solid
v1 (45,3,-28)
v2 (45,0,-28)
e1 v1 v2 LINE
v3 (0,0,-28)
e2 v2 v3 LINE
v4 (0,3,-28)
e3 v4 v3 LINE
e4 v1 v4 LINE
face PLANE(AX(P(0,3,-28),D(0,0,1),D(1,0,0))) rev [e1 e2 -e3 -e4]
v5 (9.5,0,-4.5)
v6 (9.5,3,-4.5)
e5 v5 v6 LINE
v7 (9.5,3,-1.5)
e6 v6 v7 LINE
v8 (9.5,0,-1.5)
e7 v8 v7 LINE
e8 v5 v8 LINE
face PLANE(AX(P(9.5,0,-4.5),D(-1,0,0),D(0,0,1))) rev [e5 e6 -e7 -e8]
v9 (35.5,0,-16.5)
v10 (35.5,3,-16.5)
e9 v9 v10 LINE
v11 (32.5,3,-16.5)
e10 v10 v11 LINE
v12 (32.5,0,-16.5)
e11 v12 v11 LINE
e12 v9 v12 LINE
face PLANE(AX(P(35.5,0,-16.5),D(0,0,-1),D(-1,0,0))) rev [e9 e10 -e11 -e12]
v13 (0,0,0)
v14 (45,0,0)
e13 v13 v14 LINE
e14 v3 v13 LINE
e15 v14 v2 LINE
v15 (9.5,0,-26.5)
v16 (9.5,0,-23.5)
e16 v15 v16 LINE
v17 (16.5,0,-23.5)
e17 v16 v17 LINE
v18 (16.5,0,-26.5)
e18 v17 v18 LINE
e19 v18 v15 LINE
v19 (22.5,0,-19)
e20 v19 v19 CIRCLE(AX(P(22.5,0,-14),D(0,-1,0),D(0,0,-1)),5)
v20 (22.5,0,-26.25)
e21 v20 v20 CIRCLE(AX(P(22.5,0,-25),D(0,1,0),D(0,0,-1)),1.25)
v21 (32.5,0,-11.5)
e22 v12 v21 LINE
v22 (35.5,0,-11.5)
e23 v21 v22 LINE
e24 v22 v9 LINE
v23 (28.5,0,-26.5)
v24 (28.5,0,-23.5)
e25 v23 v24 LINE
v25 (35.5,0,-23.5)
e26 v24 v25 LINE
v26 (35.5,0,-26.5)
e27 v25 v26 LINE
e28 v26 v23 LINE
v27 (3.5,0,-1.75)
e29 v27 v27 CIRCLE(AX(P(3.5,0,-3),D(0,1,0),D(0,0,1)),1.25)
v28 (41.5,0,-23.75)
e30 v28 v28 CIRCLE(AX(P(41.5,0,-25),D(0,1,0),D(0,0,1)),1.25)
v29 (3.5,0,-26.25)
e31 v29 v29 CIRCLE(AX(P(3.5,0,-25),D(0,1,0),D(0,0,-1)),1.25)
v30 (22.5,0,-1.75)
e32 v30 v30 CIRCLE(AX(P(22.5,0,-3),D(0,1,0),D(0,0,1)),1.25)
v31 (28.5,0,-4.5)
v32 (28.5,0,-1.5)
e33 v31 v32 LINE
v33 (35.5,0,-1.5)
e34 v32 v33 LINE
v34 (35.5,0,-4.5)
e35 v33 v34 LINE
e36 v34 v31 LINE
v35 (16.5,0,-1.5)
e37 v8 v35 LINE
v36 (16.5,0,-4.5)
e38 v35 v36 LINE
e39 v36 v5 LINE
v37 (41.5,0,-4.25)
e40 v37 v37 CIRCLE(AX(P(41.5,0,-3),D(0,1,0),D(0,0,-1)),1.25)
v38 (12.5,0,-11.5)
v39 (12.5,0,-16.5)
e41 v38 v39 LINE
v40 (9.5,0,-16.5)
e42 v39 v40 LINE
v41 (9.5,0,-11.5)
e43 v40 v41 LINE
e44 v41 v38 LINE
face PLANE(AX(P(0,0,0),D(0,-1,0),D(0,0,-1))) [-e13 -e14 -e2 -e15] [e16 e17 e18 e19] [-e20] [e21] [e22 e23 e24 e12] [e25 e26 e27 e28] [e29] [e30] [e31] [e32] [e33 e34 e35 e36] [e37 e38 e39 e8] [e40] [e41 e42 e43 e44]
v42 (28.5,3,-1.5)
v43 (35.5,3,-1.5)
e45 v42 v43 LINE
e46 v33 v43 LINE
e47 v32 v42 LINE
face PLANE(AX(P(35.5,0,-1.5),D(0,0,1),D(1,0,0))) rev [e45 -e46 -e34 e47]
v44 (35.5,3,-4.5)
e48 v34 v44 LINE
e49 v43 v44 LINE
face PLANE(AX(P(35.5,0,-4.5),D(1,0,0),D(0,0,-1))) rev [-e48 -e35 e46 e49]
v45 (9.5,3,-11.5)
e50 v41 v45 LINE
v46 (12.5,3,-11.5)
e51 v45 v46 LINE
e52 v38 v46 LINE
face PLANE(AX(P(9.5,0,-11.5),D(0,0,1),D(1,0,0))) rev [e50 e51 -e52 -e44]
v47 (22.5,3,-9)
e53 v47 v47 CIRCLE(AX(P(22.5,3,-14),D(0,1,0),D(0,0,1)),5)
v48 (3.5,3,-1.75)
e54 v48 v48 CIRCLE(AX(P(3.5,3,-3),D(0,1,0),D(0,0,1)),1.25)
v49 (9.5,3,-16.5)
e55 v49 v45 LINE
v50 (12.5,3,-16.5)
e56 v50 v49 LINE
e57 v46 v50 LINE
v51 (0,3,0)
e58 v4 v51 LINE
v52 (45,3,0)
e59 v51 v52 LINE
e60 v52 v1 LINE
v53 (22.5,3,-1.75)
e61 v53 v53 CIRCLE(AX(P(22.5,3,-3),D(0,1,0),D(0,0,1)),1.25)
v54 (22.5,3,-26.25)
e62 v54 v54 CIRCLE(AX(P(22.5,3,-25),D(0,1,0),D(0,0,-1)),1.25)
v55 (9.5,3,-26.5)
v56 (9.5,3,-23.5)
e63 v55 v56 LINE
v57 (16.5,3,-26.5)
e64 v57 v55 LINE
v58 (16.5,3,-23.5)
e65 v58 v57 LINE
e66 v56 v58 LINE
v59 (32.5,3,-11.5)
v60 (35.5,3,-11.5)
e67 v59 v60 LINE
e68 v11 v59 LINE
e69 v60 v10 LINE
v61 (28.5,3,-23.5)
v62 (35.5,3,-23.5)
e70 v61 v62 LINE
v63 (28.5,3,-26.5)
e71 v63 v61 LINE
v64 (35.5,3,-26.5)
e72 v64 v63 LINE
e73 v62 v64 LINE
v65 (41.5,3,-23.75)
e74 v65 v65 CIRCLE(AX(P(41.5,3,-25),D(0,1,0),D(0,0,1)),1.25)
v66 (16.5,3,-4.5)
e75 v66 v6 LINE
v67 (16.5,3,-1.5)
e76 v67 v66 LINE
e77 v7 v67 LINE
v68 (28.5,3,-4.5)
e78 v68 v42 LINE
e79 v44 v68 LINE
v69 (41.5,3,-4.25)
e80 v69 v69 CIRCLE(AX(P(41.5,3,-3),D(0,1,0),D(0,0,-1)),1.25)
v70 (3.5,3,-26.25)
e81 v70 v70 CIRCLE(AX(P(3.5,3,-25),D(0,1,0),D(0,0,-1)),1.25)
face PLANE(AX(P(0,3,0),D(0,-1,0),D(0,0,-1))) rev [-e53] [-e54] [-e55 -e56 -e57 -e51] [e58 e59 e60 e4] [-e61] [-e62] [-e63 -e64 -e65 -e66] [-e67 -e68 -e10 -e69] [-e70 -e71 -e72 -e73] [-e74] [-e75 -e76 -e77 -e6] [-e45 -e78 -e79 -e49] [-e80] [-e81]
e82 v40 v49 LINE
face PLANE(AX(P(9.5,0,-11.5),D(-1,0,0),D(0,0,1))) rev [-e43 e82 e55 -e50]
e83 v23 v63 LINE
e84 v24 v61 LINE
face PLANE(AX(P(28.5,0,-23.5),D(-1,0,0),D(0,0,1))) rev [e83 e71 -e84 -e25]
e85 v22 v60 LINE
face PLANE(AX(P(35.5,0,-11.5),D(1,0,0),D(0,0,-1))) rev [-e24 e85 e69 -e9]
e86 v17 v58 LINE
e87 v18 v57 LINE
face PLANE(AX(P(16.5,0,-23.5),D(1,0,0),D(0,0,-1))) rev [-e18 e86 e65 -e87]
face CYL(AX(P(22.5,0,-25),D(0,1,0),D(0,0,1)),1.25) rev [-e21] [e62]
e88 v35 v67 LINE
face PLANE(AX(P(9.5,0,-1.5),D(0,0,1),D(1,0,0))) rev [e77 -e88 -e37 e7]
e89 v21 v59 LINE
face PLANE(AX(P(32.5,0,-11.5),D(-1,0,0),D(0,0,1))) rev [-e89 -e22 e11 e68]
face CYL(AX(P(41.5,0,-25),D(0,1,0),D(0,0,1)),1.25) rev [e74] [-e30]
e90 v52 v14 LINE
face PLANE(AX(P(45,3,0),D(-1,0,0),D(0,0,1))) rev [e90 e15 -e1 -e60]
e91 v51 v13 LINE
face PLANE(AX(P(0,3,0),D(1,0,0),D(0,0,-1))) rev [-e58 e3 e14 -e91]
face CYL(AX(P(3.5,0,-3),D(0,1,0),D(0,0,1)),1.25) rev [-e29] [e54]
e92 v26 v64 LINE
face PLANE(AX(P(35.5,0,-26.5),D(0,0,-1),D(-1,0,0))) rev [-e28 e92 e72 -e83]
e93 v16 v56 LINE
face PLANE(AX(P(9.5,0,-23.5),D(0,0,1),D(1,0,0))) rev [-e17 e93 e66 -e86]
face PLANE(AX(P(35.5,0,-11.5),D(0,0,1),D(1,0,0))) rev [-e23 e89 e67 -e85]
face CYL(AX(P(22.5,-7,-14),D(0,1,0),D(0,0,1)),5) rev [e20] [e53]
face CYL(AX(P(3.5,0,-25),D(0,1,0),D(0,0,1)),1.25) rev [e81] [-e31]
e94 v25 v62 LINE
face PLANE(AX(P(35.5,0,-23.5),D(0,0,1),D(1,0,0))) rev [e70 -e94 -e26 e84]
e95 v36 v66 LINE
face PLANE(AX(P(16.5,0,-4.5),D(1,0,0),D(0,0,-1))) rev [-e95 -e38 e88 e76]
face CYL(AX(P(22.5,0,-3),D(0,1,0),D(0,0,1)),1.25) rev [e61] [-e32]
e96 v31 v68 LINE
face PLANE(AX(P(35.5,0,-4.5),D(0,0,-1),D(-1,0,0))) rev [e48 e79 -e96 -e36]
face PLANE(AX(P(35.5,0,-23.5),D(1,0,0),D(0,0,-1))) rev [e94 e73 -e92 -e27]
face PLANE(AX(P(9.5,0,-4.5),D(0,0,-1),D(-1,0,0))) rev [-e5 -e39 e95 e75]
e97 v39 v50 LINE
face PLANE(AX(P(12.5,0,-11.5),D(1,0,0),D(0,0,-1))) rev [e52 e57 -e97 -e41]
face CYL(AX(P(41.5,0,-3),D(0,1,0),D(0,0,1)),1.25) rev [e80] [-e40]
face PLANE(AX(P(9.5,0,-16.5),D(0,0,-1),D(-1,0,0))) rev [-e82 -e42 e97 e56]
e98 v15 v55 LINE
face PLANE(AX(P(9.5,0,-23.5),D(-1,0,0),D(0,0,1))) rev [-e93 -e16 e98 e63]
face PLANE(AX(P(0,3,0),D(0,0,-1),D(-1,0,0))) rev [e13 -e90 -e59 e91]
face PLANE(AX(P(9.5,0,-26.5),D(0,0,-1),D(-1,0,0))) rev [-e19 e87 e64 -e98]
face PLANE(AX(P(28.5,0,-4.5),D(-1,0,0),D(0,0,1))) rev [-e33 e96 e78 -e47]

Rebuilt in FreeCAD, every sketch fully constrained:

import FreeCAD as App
import Part
import Sketcher
Q = App.Units.Quantity

doc = App.newDocument("Part")
params = doc.addObject("Spreadsheet::Sheet", "Params")
for row, (alias, value) in enumerate([
    ("sketch1_width", "45 mm"),
    ("sketch1_height", "28 mm"),
    ("pad1_length", "3 mm"),
    ("sketch2_diameter", "2.5 mm"),
    ("sketch2_width", "7 mm"),
    ("sketch2_height", "3 mm"),
    ("sketch3_width", "3 mm"),
    ("sketch3_height", "5 mm"),
    ("sketch4_diameter", "10 mm"),
    ("pocket3_length", "10 mm"),
], start=1):
    params.set(f"A{row}", alias)
    params.set(f"B{row}", "=" + value)
    params.setAlias(f"B{row}", alias)

body = doc.addObject("PartDesign::Body", "Body")

# Sketch on XZ plane
sketch1 = body.newObject("Sketcher::SketchObject", "Sketch")
sketch1.AttachmentSupport = (doc.getObject("XZ_Plane"), [""])
sketch1.MapMode = "FlatFace"
sketch1.addGeometry(Part.LineSegment(App.Vector(0, -28, 0), App.Vector(0, 0, 0)), False)
sketch1.addGeometry(Part.LineSegment(App.Vector(0, 0, 0), App.Vector(45, 0, 0)), False)
sketch1.addGeometry(Part.LineSegment(App.Vector(45, 0, 0), App.Vector(45, -28, 0)), False)
sketch1.addGeometry(Part.LineSegment(App.Vector(45, -28, 0), App.Vector(0, -28, 0)), False)
sketch1.addConstraint(Sketcher.Constraint("Coincident", 0, 2, 1, 1))
sketch1.addConstraint(Sketcher.Constraint("Coincident", 1, 2, 2, 1))
sketch1.addConstraint(Sketcher.Constraint("Coincident", 2, 2, 3, 1))
sketch1.addConstraint(Sketcher.Constraint("Coincident", 3, 2, 0, 1))
sketch1.addConstraint(Sketcher.Constraint("Vertical", 0))
sketch1.addConstraint(Sketcher.Constraint("Horizontal", 1))
sketch1.addConstraint(Sketcher.Constraint("Vertical", 2))
sketch1.addConstraint(Sketcher.Constraint("Horizontal", 3))
sketch1.addConstraint(Sketcher.Constraint("Coincident", 0, 2, -1, 1))
sketch1.addConstraint(Sketcher.Constraint("DistanceX", 1, 1, 1, 2, Q("45 mm")))
sketch1.addConstraint(Sketcher.Constraint("DistanceY", 0, 1, 0, 2, Q("28 mm")))
sketch1.setExpression("Constraints[9]", "Params.sketch1_width")
sketch1.setExpression("Constraints[10]", "Params.sketch1_height")
pad1 = body.newObject("PartDesign::Pad", "Pad")
pad1.Profile = sketch1
pad1.setExpression("Length", "Params.pad1_length")
pad1.Reversed = True

# Sketch on XZ plane
sketch2 = body.newObject("Sketcher::SketchObject", "Sketch001")
sketch2.AttachmentSupport = (doc.getObject("XZ_Plane"), [""])
sketch2.MapMode = "FlatFace"
sketch2.AttachmentOffset = App.Placement(App.Vector(0, 0, -3), App.Rotation())
sketch2.addGeometry(Part.Circle(App.Vector(22.5, -3, 0), App.Vector(0, 0, 1), 1.2), False)
sketch2.addGeometry(Part.Circle(App.Vector(22.5, -25, 0), App.Vector(0, 0, 1), 1.2), False)
sketch2.addGeometry(Part.Circle(App.Vector(3.5, -3, 0), App.Vector(0, 0, 1), 1.2), False)
sketch2.addGeometry(Part.Circle(App.Vector(41.5, -3, 0), App.Vector(0, 0, 1), 1.2), False)
sketch2.addGeometry(Part.Circle(App.Vector(41.5, -25, 0), App.Vector(0, 0, 1), 1.2), False)
sketch2.addGeometry(Part.Circle(App.Vector(3.5, -25, 0), App.Vector(0, 0, 1), 1.2), False)
sketch2.addGeometry(Part.LineSegment(App.Vector(28.5, -4.5, 0), App.Vector(28.5, -1.5, 0)), False)
sketch2.addGeometry(Part.LineSegment(App.Vector(28.5, -1.5, 0), App.Vector(35.5, -1.5, 0)), False)
sketch2.addGeometry(Part.LineSegment(App.Vector(35.5, -1.5, 0), App.Vector(35.5, -4.5, 0)), False)
sketch2.addGeometry(Part.LineSegment(App.Vector(35.5, -4.5, 0), App.Vector(28.5, -4.5, 0)), False)
sketch2.addGeometry(Part.LineSegment(App.Vector(9.5, -4.5, 0), App.Vector(9.5, -1.5, 0)), False)
sketch2.addGeometry(Part.LineSegment(App.Vector(9.5, -1.5, 0), App.Vector(16.5, -1.5, 0)), False)
sketch2.addGeometry(Part.LineSegment(App.Vector(16.5, -1.5, 0), App.Vector(16.5, -4.5, 0)), False)
sketch2.addGeometry(Part.LineSegment(App.Vector(16.5, -4.5, 0), App.Vector(9.5, -4.5, 0)), False)
sketch2.addGeometry(Part.LineSegment(App.Vector(28.5, -26.5, 0), App.Vector(28.5, -23.5, 0)), False)
sketch2.addGeometry(Part.LineSegment(App.Vector(28.5, -23.5, 0), App.Vector(35.5, -23.5, 0)), False)
sketch2.addGeometry(Part.LineSegment(App.Vector(35.5, -23.5, 0), App.Vector(35.5, -26.5, 0)), False)
sketch2.addGeometry(Part.LineSegment(App.Vector(35.5, -26.5, 0), App.Vector(28.5, -26.5, 0)), False)
sketch2.addGeometry(Part.LineSegment(App.Vector(9.5, -26.5, 0), App.Vector(9.5, -23.5, 0)), False)
sketch2.addGeometry(Part.LineSegment(App.Vector(9.5, -23.5, 0), App.Vector(16.5, -23.5, 0)), False)
sketch2.addGeometry(Part.LineSegment(App.Vector(16.5, -23.5, 0), App.Vector(16.5, -26.5, 0)), False)
sketch2.addGeometry(Part.LineSegment(App.Vector(16.5, -26.5, 0), App.Vector(9.5, -26.5, 0)), False)
sketch2.addConstraint(Sketcher.Constraint("Coincident", 6, 2, 7, 1))
sketch2.addConstraint(Sketcher.Constraint("Coincident", 7, 2, 8, 1))
sketch2.addConstraint(Sketcher.Constraint("Coincident", 8, 2, 9, 1))
sketch2.addConstraint(Sketcher.Constraint("Coincident", 9, 2, 6, 1))
sketch2.addConstraint(Sketcher.Constraint("Coincident", 10, 2, 11, 1))
sketch2.addConstraint(Sketcher.Constraint("Coincident", 11, 2, 12, 1))
sketch2.addConstraint(Sketcher.Constraint("Coincident", 12, 2, 13, 1))
sketch2.addConstraint(Sketcher.Constraint("Coincident", 13, 2, 10, 1))
sketch2.addConstraint(Sketcher.Constraint("Coincident", 14, 2, 15, 1))
sketch2.addConstraint(Sketcher.Constraint("Coincident", 15, 2, 16, 1))
sketch2.addConstraint(Sketcher.Constraint("Coincident", 16, 2, 17, 1))
sketch2.addConstraint(Sketcher.Constraint("Coincident", 17, 2, 14, 1))
sketch2.addConstraint(Sketcher.Constraint("Coincident", 18, 2, 19, 1))
sketch2.addConstraint(Sketcher.Constraint("Coincident", 19, 2, 20, 1))
sketch2.addConstraint(Sketcher.Constraint("Coincident", 20, 2, 21, 1))
sketch2.addConstraint(Sketcher.Constraint("Coincident", 21, 2, 18, 1))
sketch2.addConstraint(Sketcher.Constraint("Vertical", 6))
sketch2.addConstraint(Sketcher.Constraint("Horizontal", 7))
sketch2.addConstraint(Sketcher.Constraint("Vertical", 8))
sketch2.addConstraint(Sketcher.Constraint("Horizontal", 9))
sketch2.addConstraint(Sketcher.Constraint("Vertical", 10))
sketch2.addConstraint(Sketcher.Constraint("Horizontal", 11))
sketch2.addConstraint(Sketcher.Constraint("Vertical", 12))
sketch2.addConstraint(Sketcher.Constraint("Horizontal", 13))
sketch2.addConstraint(Sketcher.Constraint("Vertical", 14))
sketch2.addConstraint(Sketcher.Constraint("Horizontal", 15))
sketch2.addConstraint(Sketcher.Constraint("Vertical", 16))
sketch2.addConstraint(Sketcher.Constraint("Horizontal", 17))
sketch2.addConstraint(Sketcher.Constraint("Vertical", 18))
sketch2.addConstraint(Sketcher.Constraint("Horizontal", 19))
sketch2.addConstraint(Sketcher.Constraint("Vertical", 20))
sketch2.addConstraint(Sketcher.Constraint("Horizontal", 21))
sketch2.addConstraint(Sketcher.Constraint("Equal", 0, 1))
sketch2.addConstraint(Sketcher.Constraint("Equal", 1, 2))
sketch2.addConstraint(Sketcher.Constraint("Equal", 2, 3))
sketch2.addConstraint(Sketcher.Constraint("Equal", 3, 4))
sketch2.addConstraint(Sketcher.Constraint("Equal", 4, 5))
sketch2.addConstraint(Sketcher.Constraint("Horizontal", 0, 3, 2, 3))
sketch2.addConstraint(Sketcher.Constraint("Horizontal", 2, 3, 3, 3))
sketch2.addConstraint(Sketcher.Constraint("Horizontal", 1, 3, 4, 3))
sketch2.addConstraint(Sketcher.Constraint("Horizontal", 4, 3, 5, 3))
sketch2.addConstraint(Sketcher.Constraint("Horizontal", 7, 2, 10, 2))
sketch2.addConstraint(Sketcher.Constraint("Horizontal", 9, 2, 12, 2))
sketch2.addConstraint(Sketcher.Constraint("Horizontal", 15, 2, 18, 2))
sketch2.addConstraint(Sketcher.Constraint("Horizontal", 17, 2, 20, 2))
sketch2.addConstraint(Sketcher.Constraint("Vertical", 0, 3, 1, 3))
sketch2.addConstraint(Sketcher.Constraint("Vertical", 3, 3, 4, 3))
sketch2.addConstraint(Sketcher.Constraint("Vertical", 2, 3, 5, 3))
sketch2.addConstraint(Sketcher.Constraint("Vertical", 9, 2, 14, 2))
sketch2.addConstraint(Sketcher.Constraint("Vertical", 8, 2, 15, 2))
sketch2.addConstraint(Sketcher.Constraint("Vertical", 13, 2, 18, 2))
sketch2.addConstraint(Sketcher.Constraint("Vertical", 12, 2, 19, 2))
sketch2.addConstraint(Sketcher.Constraint("Equal", 9, 11))
sketch2.addConstraint(Sketcher.Constraint("Equal", 12, 14))
sketch2.addConstraint(Sketcher.Constraint("Diameter", 0, Q("2.5 mm")))
sketch2.addConstraint(Sketcher.Constraint("DistanceX", 7, 1, 7, 2, Q("7 mm")))
sketch2.addConstraint(Sketcher.Constraint("DistanceY", 6, 1, 6, 2, Q("3 mm")))
sketch2.addConstraint(Sketcher.Constraint("DistanceY", 0, 3, -1, 1, Q("3 mm")))
sketch2.addConstraint(Sketcher.Constraint("DistanceY", 1, 3, -1, 1, Q("25 mm")))
sketch2.addConstraint(Sketcher.Constraint("DistanceX", 2, 3, 0, 3, Q("19 mm")))
sketch2.addConstraint(Sketcher.Constraint("DistanceX", 0, 3, 3, 3, Q("19 mm")))
sketch2.addConstraint(Sketcher.Constraint("DistanceX", 0, 3, 6, 2, Q("6 mm")))
sketch2.addConstraint(Sketcher.Constraint("DistanceX", 2, 3, 10, 2, Q("6 mm")))
sketch2.addConstraint(Sketcher.Constraint("DistanceY", 14, 2, 9, 2, Q("19 mm")))
sketch2.addConstraint(Sketcher.Constraint("DistanceX", -1, 1, 0, 3, Q("22.5 mm")))
sketch2.addConstraint(Sketcher.Constraint("DistanceY", 6, 2, -1, 1, Q("1.5 mm")))
sketch2.setExpression("Constraints[54]", "Params.sketch2_diameter")
sketch2.setExpression("Constraints[55]", "Params.sketch2_width")
sketch2.setExpression("Constraints[56]", "Params.sketch2_height")
pocket1 = body.newObject("PartDesign::Pocket", "Pocket")
pocket1.Profile = sketch2
pocket1.Type = "ThroughAll"
pocket1.Reversed = True

# Sketch on XZ plane
sketch3 = body.newObject("Sketcher::SketchObject", "Sketch002")
sketch3.AttachmentSupport = (doc.getObject("XZ_Plane"), [""])
sketch3.MapMode = "FlatFace"
sketch3.AttachmentOffset = App.Placement(App.Vector(0, 0, -3), App.Rotation())
sketch3.addGeometry(Part.LineSegment(App.Vector(9.5, -16.5, 0), App.Vector(9.5, -11.5, 0)), False)
sketch3.addGeometry(Part.LineSegment(App.Vector(9.5, -11.5, 0), App.Vector(12.5, -11.5, 0)), False)
sketch3.addGeometry(Part.LineSegment(App.Vector(12.5, -11.5, 0), App.Vector(12.5, -16.5, 0)), False)
sketch3.addGeometry(Part.LineSegment(App.Vector(12.5, -16.5, 0), App.Vector(9.5, -16.5, 0)), False)
sketch3.addGeometry(Part.LineSegment(App.Vector(32.5, -16.5, 0), App.Vector(32.5, -11.5, 0)), False)
sketch3.addGeometry(Part.LineSegment(App.Vector(32.5, -11.5, 0), App.Vector(35.5, -11.5, 0)), False)
sketch3.addGeometry(Part.LineSegment(App.Vector(35.5, -11.5, 0), App.Vector(35.5, -16.5, 0)), False)
sketch3.addGeometry(Part.LineSegment(App.Vector(35.5, -16.5, 0), App.Vector(32.5, -16.5, 0)), False)
sketch3.addConstraint(Sketcher.Constraint("Coincident", 0, 2, 1, 1))
sketch3.addConstraint(Sketcher.Constraint("Coincident", 1, 2, 2, 1))
sketch3.addConstraint(Sketcher.Constraint("Coincident", 2, 2, 3, 1))
sketch3.addConstraint(Sketcher.Constraint("Coincident", 3, 2, 0, 1))
sketch3.addConstraint(Sketcher.Constraint("Coincident", 4, 2, 5, 1))
sketch3.addConstraint(Sketcher.Constraint("Coincident", 5, 2, 6, 1))
sketch3.addConstraint(Sketcher.Constraint("Coincident", 6, 2, 7, 1))
sketch3.addConstraint(Sketcher.Constraint("Coincident", 7, 2, 4, 1))
sketch3.addConstraint(Sketcher.Constraint("Vertical", 0))
sketch3.addConstraint(Sketcher.Constraint("Horizontal", 1))
sketch3.addConstraint(Sketcher.Constraint("Vertical", 2))
sketch3.addConstraint(Sketcher.Constraint("Horizontal", 3))
sketch3.addConstraint(Sketcher.Constraint("Vertical", 4))
sketch3.addConstraint(Sketcher.Constraint("Horizontal", 5))
sketch3.addConstraint(Sketcher.Constraint("Vertical", 6))
sketch3.addConstraint(Sketcher.Constraint("Horizontal", 7))
sketch3.addConstraint(Sketcher.Constraint("Horizontal", 1, 2, 4, 2))
sketch3.addConstraint(Sketcher.Constraint("Horizontal", 3, 2, 6, 2))
sketch3.addConstraint(Sketcher.Constraint("Equal", 3, 5))
sketch3.addConstraint(Sketcher.Constraint("DistanceX", 1, 1, 1, 2, Q("3 mm")))
sketch3.addConstraint(Sketcher.Constraint("DistanceY", 0, 1, 0, 2, Q("5 mm")))
sketch3.addConstraint(Sketcher.Constraint("DistanceX", 1, 2, 4, 2, Q("20 mm")))
sketch3.addConstraint(Sketcher.Constraint("DistanceX", -1, 1, 0, 2, Q("9.5 mm")))
sketch3.addConstraint(Sketcher.Constraint("DistanceY", 0, 2, -1, 1, Q("11.5 mm")))
sketch3.setExpression("Constraints[19]", "Params.sketch3_width")
sketch3.setExpression("Constraints[20]", "Params.sketch3_height")
pocket2 = body.newObject("PartDesign::Pocket", "Pocket001")
pocket2.Profile = sketch3
pocket2.Type = "ThroughAll"
pocket2.Reversed = True

# Sketch on XZ plane
sketch4 = body.newObject("Sketcher::SketchObject", "Sketch003")
sketch4.AttachmentSupport = (doc.getObject("XZ_Plane"), [""])
sketch4.MapMode = "FlatFace"
sketch4.AttachmentOffset = App.Placement(App.Vector(0, 0, -3), App.Rotation())
sketch4.addGeometry(Part.Circle(App.Vector(22, -14, 0), App.Vector(0, 0, 1), 5), False)
sketch4.addConstraint(Sketcher.Constraint("Diameter", 0, Q("10 mm")))
sketch4.addConstraint(Sketcher.Constraint("DistanceY", 0, 3, -1, 1, Q("14 mm")))
sketch4.addConstraint(Sketcher.Constraint("DistanceX", -1, 1, 0, 3, Q("22.5 mm")))
sketch4.setExpression("Constraints[0]", "Params.sketch4_diameter")
pocket3 = body.newObject("PartDesign::Pocket", "Pocket002")
pocket3.Profile = sketch4
pocket3.setExpression("Length", "Params.pocket3_length")
pocket3.Reversed = True

doc.recompute()
